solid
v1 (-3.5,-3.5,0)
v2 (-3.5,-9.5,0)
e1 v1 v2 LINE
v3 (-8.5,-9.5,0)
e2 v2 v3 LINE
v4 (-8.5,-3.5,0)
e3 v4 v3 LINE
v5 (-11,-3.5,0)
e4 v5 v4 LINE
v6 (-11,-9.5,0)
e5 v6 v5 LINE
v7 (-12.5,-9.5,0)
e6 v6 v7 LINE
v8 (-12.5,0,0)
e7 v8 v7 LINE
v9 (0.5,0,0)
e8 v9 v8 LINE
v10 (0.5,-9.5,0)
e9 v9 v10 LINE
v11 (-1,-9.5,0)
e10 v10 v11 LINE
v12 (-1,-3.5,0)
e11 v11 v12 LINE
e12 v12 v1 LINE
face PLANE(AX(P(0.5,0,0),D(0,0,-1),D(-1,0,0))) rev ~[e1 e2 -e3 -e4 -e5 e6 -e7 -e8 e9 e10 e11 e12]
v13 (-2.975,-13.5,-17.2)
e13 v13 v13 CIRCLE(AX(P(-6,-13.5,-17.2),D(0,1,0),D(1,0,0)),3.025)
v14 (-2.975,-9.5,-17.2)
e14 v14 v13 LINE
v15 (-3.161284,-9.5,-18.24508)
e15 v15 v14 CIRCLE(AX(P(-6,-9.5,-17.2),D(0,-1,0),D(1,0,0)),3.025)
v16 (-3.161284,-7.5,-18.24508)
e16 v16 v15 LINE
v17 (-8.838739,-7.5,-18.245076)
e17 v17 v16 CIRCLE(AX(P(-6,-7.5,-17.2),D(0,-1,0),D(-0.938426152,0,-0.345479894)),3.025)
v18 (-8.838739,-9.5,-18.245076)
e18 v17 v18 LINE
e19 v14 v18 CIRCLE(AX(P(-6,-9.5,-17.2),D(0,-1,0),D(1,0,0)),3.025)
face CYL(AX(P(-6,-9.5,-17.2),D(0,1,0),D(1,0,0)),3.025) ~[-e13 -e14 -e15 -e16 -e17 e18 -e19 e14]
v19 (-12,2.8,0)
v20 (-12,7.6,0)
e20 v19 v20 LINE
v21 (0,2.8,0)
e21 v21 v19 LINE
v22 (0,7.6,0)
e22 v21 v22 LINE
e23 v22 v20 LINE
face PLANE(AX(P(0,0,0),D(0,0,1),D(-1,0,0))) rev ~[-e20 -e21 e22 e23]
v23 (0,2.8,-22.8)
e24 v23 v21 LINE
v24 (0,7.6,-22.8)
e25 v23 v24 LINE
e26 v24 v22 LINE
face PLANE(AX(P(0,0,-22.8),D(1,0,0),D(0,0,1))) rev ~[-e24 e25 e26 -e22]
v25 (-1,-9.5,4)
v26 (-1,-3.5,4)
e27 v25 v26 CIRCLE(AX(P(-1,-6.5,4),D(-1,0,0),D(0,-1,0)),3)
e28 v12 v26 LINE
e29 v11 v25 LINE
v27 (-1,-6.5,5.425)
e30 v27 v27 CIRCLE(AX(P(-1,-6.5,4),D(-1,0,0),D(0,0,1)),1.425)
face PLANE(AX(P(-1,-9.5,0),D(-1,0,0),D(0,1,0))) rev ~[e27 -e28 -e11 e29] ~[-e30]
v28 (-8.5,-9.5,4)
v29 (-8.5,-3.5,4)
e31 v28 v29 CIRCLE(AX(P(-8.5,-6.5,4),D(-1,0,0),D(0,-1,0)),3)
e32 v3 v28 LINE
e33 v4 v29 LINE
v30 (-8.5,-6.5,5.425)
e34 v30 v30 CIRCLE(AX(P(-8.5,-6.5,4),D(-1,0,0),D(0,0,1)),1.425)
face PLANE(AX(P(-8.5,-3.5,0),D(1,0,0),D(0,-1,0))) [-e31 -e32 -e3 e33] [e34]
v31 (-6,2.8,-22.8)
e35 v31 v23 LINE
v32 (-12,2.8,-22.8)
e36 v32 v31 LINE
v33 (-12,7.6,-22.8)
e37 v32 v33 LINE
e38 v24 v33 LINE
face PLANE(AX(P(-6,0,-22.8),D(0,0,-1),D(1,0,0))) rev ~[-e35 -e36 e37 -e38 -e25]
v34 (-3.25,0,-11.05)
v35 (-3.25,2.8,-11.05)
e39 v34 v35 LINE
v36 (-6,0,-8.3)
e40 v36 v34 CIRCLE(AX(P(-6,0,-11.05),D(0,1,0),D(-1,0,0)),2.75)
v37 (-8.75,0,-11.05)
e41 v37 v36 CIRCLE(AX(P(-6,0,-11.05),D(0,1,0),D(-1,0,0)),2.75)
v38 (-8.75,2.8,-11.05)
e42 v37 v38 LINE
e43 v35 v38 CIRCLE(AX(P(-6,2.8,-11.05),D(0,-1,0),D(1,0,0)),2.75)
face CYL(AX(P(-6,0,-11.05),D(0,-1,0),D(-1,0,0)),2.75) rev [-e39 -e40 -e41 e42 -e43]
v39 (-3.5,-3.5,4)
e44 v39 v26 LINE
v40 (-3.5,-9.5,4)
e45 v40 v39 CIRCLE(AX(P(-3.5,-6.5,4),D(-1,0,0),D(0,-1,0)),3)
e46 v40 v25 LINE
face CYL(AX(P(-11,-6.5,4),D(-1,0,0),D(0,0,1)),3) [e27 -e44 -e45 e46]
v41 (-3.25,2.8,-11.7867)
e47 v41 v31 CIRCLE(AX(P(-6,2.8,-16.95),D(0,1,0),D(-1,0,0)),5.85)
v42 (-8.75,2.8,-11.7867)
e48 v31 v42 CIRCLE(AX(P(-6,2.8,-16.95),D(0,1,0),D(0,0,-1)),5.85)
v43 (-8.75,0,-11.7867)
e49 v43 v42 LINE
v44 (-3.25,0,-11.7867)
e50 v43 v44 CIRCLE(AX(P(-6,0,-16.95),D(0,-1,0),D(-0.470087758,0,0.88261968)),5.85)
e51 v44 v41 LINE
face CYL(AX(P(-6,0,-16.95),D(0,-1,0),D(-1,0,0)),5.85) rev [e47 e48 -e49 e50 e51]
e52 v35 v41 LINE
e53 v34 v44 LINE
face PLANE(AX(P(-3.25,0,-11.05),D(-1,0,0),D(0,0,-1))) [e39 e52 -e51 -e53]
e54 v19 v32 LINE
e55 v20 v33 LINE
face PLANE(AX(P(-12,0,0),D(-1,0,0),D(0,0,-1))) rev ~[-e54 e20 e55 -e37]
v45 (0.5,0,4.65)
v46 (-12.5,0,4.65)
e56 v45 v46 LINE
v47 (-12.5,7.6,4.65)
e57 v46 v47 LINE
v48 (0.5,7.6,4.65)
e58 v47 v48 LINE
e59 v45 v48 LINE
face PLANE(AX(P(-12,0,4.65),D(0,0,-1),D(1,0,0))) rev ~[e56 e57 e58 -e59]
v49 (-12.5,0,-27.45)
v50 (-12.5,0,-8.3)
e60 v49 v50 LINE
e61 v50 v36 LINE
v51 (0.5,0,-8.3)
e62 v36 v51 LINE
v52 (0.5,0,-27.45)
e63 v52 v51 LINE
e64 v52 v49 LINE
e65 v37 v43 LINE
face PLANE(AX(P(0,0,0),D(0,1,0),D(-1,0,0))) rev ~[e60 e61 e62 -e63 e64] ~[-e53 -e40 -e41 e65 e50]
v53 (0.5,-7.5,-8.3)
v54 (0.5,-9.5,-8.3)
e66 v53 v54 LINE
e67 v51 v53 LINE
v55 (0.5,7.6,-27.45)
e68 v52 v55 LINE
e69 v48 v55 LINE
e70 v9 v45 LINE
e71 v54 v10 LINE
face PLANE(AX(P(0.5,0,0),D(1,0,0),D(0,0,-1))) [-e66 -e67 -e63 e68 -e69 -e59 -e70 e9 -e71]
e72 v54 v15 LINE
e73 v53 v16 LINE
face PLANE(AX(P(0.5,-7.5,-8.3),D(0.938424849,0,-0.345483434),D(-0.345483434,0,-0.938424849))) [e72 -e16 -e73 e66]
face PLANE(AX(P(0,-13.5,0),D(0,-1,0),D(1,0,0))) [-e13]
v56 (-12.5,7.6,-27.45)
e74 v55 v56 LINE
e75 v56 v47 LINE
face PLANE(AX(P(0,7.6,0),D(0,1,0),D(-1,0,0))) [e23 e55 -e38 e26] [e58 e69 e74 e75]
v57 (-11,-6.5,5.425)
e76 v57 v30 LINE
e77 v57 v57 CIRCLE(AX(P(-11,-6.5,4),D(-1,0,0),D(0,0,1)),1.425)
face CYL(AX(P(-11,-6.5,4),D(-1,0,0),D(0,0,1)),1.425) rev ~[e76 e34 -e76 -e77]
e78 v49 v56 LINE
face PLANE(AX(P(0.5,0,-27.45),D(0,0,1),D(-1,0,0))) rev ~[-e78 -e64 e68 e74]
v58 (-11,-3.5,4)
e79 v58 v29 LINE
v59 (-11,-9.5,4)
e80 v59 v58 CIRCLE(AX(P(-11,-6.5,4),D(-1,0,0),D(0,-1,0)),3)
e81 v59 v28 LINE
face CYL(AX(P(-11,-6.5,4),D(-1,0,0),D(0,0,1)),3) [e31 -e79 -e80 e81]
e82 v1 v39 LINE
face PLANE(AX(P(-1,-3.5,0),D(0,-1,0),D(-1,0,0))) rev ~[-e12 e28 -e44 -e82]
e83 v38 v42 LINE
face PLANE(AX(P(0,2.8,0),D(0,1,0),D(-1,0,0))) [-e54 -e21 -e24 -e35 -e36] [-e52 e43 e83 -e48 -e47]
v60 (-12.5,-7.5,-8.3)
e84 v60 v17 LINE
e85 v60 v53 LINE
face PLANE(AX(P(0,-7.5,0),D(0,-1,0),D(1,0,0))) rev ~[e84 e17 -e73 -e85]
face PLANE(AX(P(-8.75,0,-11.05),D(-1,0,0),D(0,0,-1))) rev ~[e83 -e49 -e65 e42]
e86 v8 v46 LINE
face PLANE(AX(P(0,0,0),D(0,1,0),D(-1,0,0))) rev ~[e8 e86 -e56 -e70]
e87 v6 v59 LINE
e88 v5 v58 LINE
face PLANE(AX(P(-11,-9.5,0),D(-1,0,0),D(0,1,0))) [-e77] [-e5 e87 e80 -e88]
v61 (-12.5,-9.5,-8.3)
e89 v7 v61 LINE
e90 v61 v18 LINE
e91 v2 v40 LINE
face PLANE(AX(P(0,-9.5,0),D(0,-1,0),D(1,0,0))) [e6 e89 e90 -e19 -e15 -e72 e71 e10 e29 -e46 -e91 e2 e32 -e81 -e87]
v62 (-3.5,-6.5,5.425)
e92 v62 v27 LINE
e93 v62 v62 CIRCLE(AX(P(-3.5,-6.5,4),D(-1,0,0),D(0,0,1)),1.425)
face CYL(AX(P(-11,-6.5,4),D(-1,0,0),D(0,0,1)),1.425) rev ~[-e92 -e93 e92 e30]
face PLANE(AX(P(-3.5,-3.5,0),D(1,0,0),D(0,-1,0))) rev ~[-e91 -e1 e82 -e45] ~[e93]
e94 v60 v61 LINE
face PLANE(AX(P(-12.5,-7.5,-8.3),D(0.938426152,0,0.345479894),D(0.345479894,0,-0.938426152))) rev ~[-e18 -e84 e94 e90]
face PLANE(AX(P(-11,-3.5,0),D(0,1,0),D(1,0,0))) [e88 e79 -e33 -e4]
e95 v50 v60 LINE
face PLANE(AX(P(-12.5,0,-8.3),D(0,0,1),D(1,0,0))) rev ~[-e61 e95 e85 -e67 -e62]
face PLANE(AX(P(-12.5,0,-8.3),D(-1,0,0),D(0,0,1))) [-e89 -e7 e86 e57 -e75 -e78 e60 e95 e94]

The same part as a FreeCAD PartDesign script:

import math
import FreeCAD as App
import Part
import Sketcher
Q = App.Units.Quantity

doc = App.newDocument("Part")
body = doc.addObject("PartDesign::Body", "Body")

# Sketch on XZ plane
sketch1 = doc.addObject("Sketcher::SketchObject", "Sketch")
body.addObject(sketch1)
sketch1.AttachmentSupport = (doc.XZ_Plane, [""])
sketch1.MapMode = "FlatFace"
sketch1.addGeometry([
    Part.LineSegment(App.Vector(-12, 0, 0), App.Vector(0, 0, 0)),  # 0
    Part.LineSegment(App.Vector(0, 0, 0), App.Vector(0, -22.8, 0)),  # 1
    Part.LineSegment(App.Vector(0, -22.8, 0), App.Vector(-6, -22.8, 0)),  # 2
    Part.LineSegment(App.Vector(-6, -22.8, 0), App.Vector(-12, -22.8, 0)),  # 3
    Part.LineSegment(App.Vector(-12, -22.8, 0), App.Vector(-12, 0, 0)),  # 4
    Part.ArcOfCircle(Part.Circle(App.Vector(-6, -16.9, 0), App.Vector(0, 0, 1), 5.8), math.radians(118), math.radians(270)),  # 5
    Part.ArcOfCircle(Part.Circle(App.Vector(-6, -16.9, 0), App.Vector(0, 0, 1), 5.8), math.radians(-90), math.radians(62)),  # 6
    Part.LineSegment(App.Vector(-3.2, -11.8, 0), App.Vector(-3.2, -11.1, 0)),  # 7
    Part.ArcOfCircle(Part.Circle(App.Vector(-6, -11.1, 0), App.Vector(0, 0, 1), 2.8), math.radians(0), math.radians(180)),  # 8
    Part.LineSegment(App.Vector(-8.8, -11.1, 0), App.Vector(-8.8, -11.8, 0)),  # 9
], False)
sketch1.addConstraint([
    Sketcher.Constraint("Coincident", 0, 2, 1, 1),
    Sketcher.Constraint("Coincident", 1, 2, 2, 1),
    Sketcher.Constraint("Coincident", 2, 2, 3, 1),
    Sketcher.Constraint("Coincident", 3, 2, 4, 1),
    Sketcher.Constraint("Coincident", 4, 2, 0, 1),
    Sketcher.Constraint("Tangent", 5, 2, 6, 1),
    Sketcher.Constraint("Coincident", 6, 2, 7, 1),
    Sketcher.Constraint("Tangent", 7, 2, 8, 1),
    Sketcher.Constraint("Tangent", 8, 2, 9, 1),
    Sketcher.Constraint("Coincident", 9, 2, 5, 1),
    Sketcher.Constraint("Horizontal", 0),
    Sketcher.Constraint("Vertical", 1),
    Sketcher.Constraint("Horizontal", 2),
    Sketcher.Constraint("Horizontal", 3),
    Sketcher.Constraint("Vertical", 4),
    Sketcher.Constraint("Vertical", 7),
    Sketcher.Constraint("Vertical", 9),
    Sketcher.Constraint("Coincident", 0, 2, -1, 1),
    Sketcher.Constraint("Coincident", 5, 2, 2, 2),
    Sketcher.Constraint("Equal", 5, 6),
    Sketcher.Constraint("Horizontal", 6, 2, 9, 2),
    Sketcher.Constraint("Vertical", 8, 3, 2, 2),
    Sketcher.Constraint("Equal", 2, 3),
    Sketcher.Constraint("DistanceX", 0, 1, 0, 2, Q("12 mm")),
    Sketcher.Constraint("Radius", 5, Q("5.85 mm")),
    Sketcher.Constraint("Radius", 8, Q("2.75 mm")),
    Sketcher.Constraint("DistanceY", 1, 2, 1, 1, Q("22.8 mm")),
    Sketcher.Constraint("DistanceY", 5, 3, 8, 3, Q("5.9 mm")),
])
pad1 = doc.addObject("PartDesign::Pad", "Pad")
body.addObject(pad1)
pad1.Profile = sketch1
pad1.Length = 2.8
pad1.Reversed = True

# Sketch on XZ plane
sketch2 = doc.addObject("Sketcher::SketchObject", "Sketch001")
body.addObject(sketch2)
sketch2.AttachmentSupport = (doc.XZ_Plane, [""])
sketch2.MapMode = "FlatFace"
sketch2.addGeometry([
    Part.LineSegment(App.Vector(0, 5, 0), App.Vector(0, -27, 0)),  # 0
    Part.LineSegment(App.Vector(0, -27, 0), App.Vector(-12, -27, 0)),  # 1
    Part.LineSegment(App.Vector(-12, -27, 0), App.Vector(-12, 5, 0)),  # 2
    Part.LineSegment(App.Vector(-12, 5, 0), App.Vector(0, 5, 0)),  # 3
    Part.LineSegment(App.Vector(0, -23, 0), App.Vector(0, 0, 0)),  # 4
    Part.LineSegment(App.Vector(0, 0, 0), App.Vector(-12, 0, 0)),  # 5
    Part.LineSegment(App.Vector(-12, 0, 0), App.Vector(-12, -23, 0)),  # 6
    Part.LineSegment(App.Vector(-12, -23, 0), App.Vector(0, -23, 0)),  # 7
], False)
sketch2.addConstraint([
    Sketcher.Constraint("Coincident", 0, 2, 1, 1),
    Sketcher.Constraint("Coincident", 1, 2, 2, 1),
    Sketcher.Constraint("Coincident", 2, 2, 3, 1),
    Sketcher.Constraint("Coincident", 3, 2, 0, 1),
    Sketcher.Constraint("Coincident", 4, 2, 5, 1),
    Sketcher.Constraint("Coincident", 5, 2, 6, 1),
    Sketcher.Constraint("Coincident", 6, 2, 7, 1),
    Sketcher.Constraint("Coincident", 7, 2, 4, 1),
    Sketcher.Constraint("Vertical", 0),
    Sketcher.Constraint("Horizontal", 1),
    Sketcher.Constraint("Vertical", 2),
    Sketcher.Constraint("Horizontal", 3),
    Sketcher.Constraint("Vertical", 4),
    Sketcher.Constraint("Horizontal", 5),
    Sketcher.Constraint("Vertical", 6),
    Sketcher.Constraint("Horizontal", 7),
    Sketcher.Constraint("Coincident", 4, 2, -1, 1),
    Sketcher.Constraint("DistanceX", 5, 2, 5, 1, Q("12 mm")),
    Sketcher.Constraint("DistanceY", 4, 1, 4, 2, Q("22.8 mm")),
    Sketcher.Constraint("DistanceX", -1, 1, 0, 2, Q("0.5 mm")),
    Sketcher.Constraint("DistanceX", 2, 2, 5, 2, Q("0.5 mm")),
    Sketcher.Constraint("DistanceY", -1, 1, 2, 2, Q("4.65 mm")),
    Sketcher.Constraint("DistanceY", 1, 2, 6, 2, Q("4.65 mm")),
])
pad2 = doc.addObject("PartDesign::Pad", "Pad001")
body.addObject(pad2)
pad2.Profile = sketch2
pad2.Length = 7.6
pad2.Reversed = True

# Sketch on XZ plane
sketch3 = doc.addObject("Sketcher::SketchObject", "Sketch002")
body.addObject(sketch3)
sketch3.AttachmentSupport = (doc.XZ_Plane, [""])
sketch3.MapMode = "FlatFace"
sketch3.addGeometry([
    Part.LineSegment(App.Vector(0, -8, 0), App.Vector(0, 0, 0)),
    Part.LineSegment(App.Vector(0, 0, 0), App.Vector(-12, 0, 0)),
    Part.LineSegment(App.Vector(-12, 0, 0), App.Vector(-12, -8, 0)),
    Part.LineSegment(App.Vector(-12, -8, 0), App.Vector(0, -8, 0)),
], False)
sketch3.addConstraint([
    Sketcher.Constraint("Coincident", 0, 2, 1, 1),
    Sketcher.Constraint("Coincident", 1, 2, 2, 1),
    Sketcher.Constraint("Coincident", 2, 2, 3, 1),
    Sketcher.Constraint("Coincident", 3, 2, 0, 1),
    Sketcher.Constraint("Vertical", 0),
    Sketcher.Constraint("Horizontal", 1),
    Sketcher.Constraint("Vertical", 2),
    Sketcher.Constraint("Horizontal", 3),
    Sketcher.Constraint("PointOnObject", 0, 2, -1),
    Sketcher.Constraint("DistanceY", 0, 1, 0, 2, Q("8.3 mm")),
    Sketcher.Constraint("DistanceX", 1, 2, 1, 1, Q("13 mm")),
    Sketcher.Constraint("DistanceX", -1, 1, 0, 2, Q("0.5 mm")),
])
pad3 = doc.addObject("PartDesign::Pad", "Pad002")
body.addObject(pad3)
pad3.Profile = sketch3
pad3.Length = 7.5

# Sketch on XZ plane
sketch4 = doc.addObject("Sketcher::SketchObject", "Sketch003")
body.addObject(sketch4)
sketch4.AttachmentSupport = (doc.XZ_Plane, [""])
sketch4.MapMode = "FlatFace"
sketch4.AttachmentOffset = App.Placement(App.Vector(0, 0, 7.5), App.Rotation())
sketch4.addGeometry([
    Part.LineSegment(App.Vector(-3.2, -18.2, 0), App.Vector(0.5, -8.3, 0)),  # 0
    Part.LineSegment(App.Vector(0.5, -8.3, 0), App.Vector(0.5, 0, 0)),  # 1
    Part.LineSegment(App.Vector(0.5, 0, 0), App.Vector(-12.5, 0, 0)),  # 2
    Part.LineSegment(App.Vector(-12.5, 0, 0), App.Vector(-12.5, -8.3, 0)),  # 3
    Part.LineSegment(App.Vector(-12.5, -8.3, 0), App.Vector(-8.8, -18.2, 0)),  # 4
    Part.ArcOfCircle(Part.Circle(App.Vector(-6, -17.2, 0), App.Vector(0, 0, 1), 3), math.radians(-160), math.radians(-20)),  # 5
], False)
sketch4.addConstraint([
    Sketcher.Constraint("Coincident", 0, 2, 1, 1),
    Sketcher.Constraint("Coincident", 1, 2, 2, 1),
    Sketcher.Constraint("Coincident", 2, 2, 3, 1),
    Sketcher.Constraint("Coincident", 3, 2, 4, 1),
    Sketcher.Constraint("Tangent", 4, 2, 5, 1),
    Sketcher.Constraint("Tangent", 5, 2, 0, 1),
    Sketcher.Constraint("Vertical", 1),
    Sketcher.Constraint("Horizontal", 2),
    Sketcher.Constraint("Vertical", 3),
    Sketcher.Constraint("PointOnObject", 1, 2, -1),
    Sketcher.Constraint("Horizontal", 0, 2, 3, 2),
    Sketcher.Constraint("Horizontal", 4, 2, 5, 2),
    Sketcher.Constraint("Radius", 5, Q("3.025 mm")),
    Sketcher.Constraint("DistanceX", 2, 2, 2, 1, Q("13 mm")),
    Sketcher.Constraint("DistanceY", 1, 1, 1, 2, Q("8.3 mm")),
    Sketcher.Constraint("DistanceX", 5, 3, -1, 1, Q("6 mm")),
    Sketcher.Constraint("DistanceY", 5, 3, -1, 1, Q("17.2 mm")),
])
pad4 = doc.addObject("PartDesign::Pad", "Pad003")
body.addObject(pad4)
pad4.Profile = sketch4
pad4.Length = 2

# Sketch on XZ plane
sketch5 = doc.addObject("Sketcher::SketchObject", "Sketch004")
body.addObject(sketch5)
sketch5.AttachmentSupport = (doc.XZ_Plane, [""])
sketch5.MapMode = "FlatFace"
sketch5.AttachmentOffset = App.Placement(App.Vector(0, 0, 9.5), App.Rotation())
sketch5.addGeometry(Part.Circle(App.Vector(-6, -17.2, 0), App.Vector(0, 0, 1), 3), False)
sketch5.addConstraint([
    Sketcher.Constraint("Diameter", 0, Q("6.05 mm")),
    Sketcher.Constraint("DistanceX", 0, 3, -1, 1, Q("6 mm")),
    Sketcher.Constraint("DistanceY", 0, 3, -1, 1, Q("17.2 mm")),
])
pad5 = doc.addObject("PartDesign::Pad", "Pad004")
body.addObject(pad5)
pad5.Profile = sketch5
pad5.Length = 4

# Sketch on XY plane
sketch6 = doc.addObject("Sketcher::SketchObject", "Sketch005")
body.addObject(sketch6)
sketch6.AttachmentSupport = (doc.XY_Plane, [""])
sketch6.MapMode = "FlatFace"
sketch6.addGeometry([
    Part.LineSegment(App.Vector(-11, -9.5, 0), App.Vector(-8.5, -9.5, 0)),  # 0
    Part.LineSegment(App.Vector(-8.5, -9.5, 0), App.Vector(-8.5, -3.5, 0)),  # 1
    Part.LineSegment(App.Vector(-8.5, -3.5, 0), App.Vector(-11, -3.5, 0)),  # 2
    Part.LineSegment(App.Vector(-11, -3.5, 0), App.Vector(-11, -9.5, 0)),  # 3
    Part.LineSegment(App.Vector(-3.5, -9.5, 0), App.Vector(-1, -9.5, 0)),  # 4
    Part.LineSegment(App.Vector(-1, -9.5, 0), App.Vector(-1, -3.5, 0)),  # 5
    Part.LineSegment(App.Vector(-1, -3.5, 0), App.Vector(-3.5, -3.5, 0)),  # 6
    Part.LineSegment(App.Vector(-3.5, -3.5, 0), App.Vector(-3.5, -9.5, 0)),  # 7
], False)
sketch6.addConstraint([
    Sketcher.Constraint("Coincident", 0, 2, 1, 1),
    Sketcher.Constraint("Coincident", 1, 2, 2, 1),
    Sketcher.Constraint("Coincident", 2, 2, 3, 1),
    Sketcher.Constraint("Coincident", 3, 2, 0, 1),
    Sketcher.Constraint("Coincident", 4, 2, 5, 1),
    Sketcher.Constraint("Coincident", 5, 2, 6, 1),
    Sketcher.Constraint("Coincident", 6, 2, 7, 1),
    Sketcher.Constraint("Coincident", 7, 2, 4, 1),
    Sketcher.Constraint("Horizontal", 0),
    Sketcher.Constraint("Vertical", 1),
    Sketcher.Constraint("Horizontal", 2),
    Sketcher.Constraint("Vertical", 3),
    Sketcher.Constraint("Horizontal", 4),
    Sketcher.Constraint("Vertical", 5),
    Sketcher.Constraint("Horizontal", 6),
    Sketcher.Constraint("Vertical", 7),
    Sketcher.Constraint("Horizontal", 3, 2, 4, 2),
    Sketcher.Constraint("Horizontal", 2, 2, 5, 2),
    Sketcher.Constraint("Equal", 2, 4),
    Sketcher.Constraint("DistanceY", 1, 1, 1, 2, Q("6 mm")),
    Sketcher.Constraint("DistanceX", 0, 1, 0, 2, Q("2.5 mm")),
    Sketcher.Constraint("DistanceX", 2, 2, -1, 1, Q("11 mm")),
    Sketcher.Constraint("DistanceX", 4, 2, -1, 1, Q("1 mm")),
    Sketcher.Constraint("DistanceY", 0, 2, -1, 1, Q("9.5 mm")),
])
pad6 = doc.addObject("PartDesign::Pad", "Pad005")
body.addObject(pad6)
pad6.Profile = sketch6
pad6.Length = 7

# Sketch on YZ plane
sketch7 = doc.addObject("Sketcher::SketchObject", "Sketch006")
body.addObject(sketch7)
sketch7.AttachmentSupport = (doc.YZ_Plane, [""])
sketch7.MapMode = "FlatFace"
sketch7.AttachmentOffset = App.Placement(App.Vector(0, 0, -11), App.Rotation())
sketch7.addGeometry([
    Part.LineSegment(App.Vector(-6.5, 7, 0), App.Vector(-3.5, 7, 0)),  # 0
    Part.LineSegment(App.Vector(-3.5, 7, 0), App.Vector(-3.5, 4, 0)),  # 1
    Part.ArcOfCircle(Part.Circle(App.Vector(-6.5, 4, 0), App.Vector(0, 0, 1), 3), math.radians(0), math.radians(90)),  # 2
    Part.Circle(App.Vector(-6.5, 4, 0), App.Vector(0, 0, 1), 1.4),  # 3
    Part.LineSegment(App.Vector(-9.5, 7, 0), App.Vector(-6.5, 7, 0)),  # 4
    Part.ArcOfCircle(Part.Circle(App.Vector(-6.5, 4, 0), App.Vector(0, 0, 1), 3), math.radians(90), math.radians(180)),  # 5
    Part.LineSegment(App.Vector(-9.5, 4, 0), App.Vector(-9.5, 7, 0)),  # 6
], False)
sketch7.addConstraint([
    Sketcher.Constraint("Coincident", 0, 2, 1, 1),
    Sketcher.Constraint("Tangent", 1, 2, 2, 1),
    Sketcher.Constraint("Tangent", 2, 2, 0, 1),
    Sketcher.Constraint("Tangent", 4, 2, 5, 1),
    Sketcher.Constraint("Tangent", 5, 2, 6, 1),
    Sketcher.Constraint("Coincident", 6, 2, 4, 1),
    Sketcher.Constraint("Horizontal", 0),
    Sketcher.Constraint("Vertical", 1),
    Sketcher.Constraint("Horizontal", 4),
    Sketcher.Constraint("Vertical", 6),
    Sketcher.Constraint("Coincident", 3, 3, 2, 3),
    Sketcher.Constraint("Coincident", 5, 3, 2, 3),
    Sketcher.Constraint("Equal", 2, 5),
    Sketcher.Constraint("Radius", 2, Q("3 mm")),
    Sketcher.Constraint("Diameter", 3, Q("2.85 mm")),
    Sketcher.Constraint("DistanceY", -1, 1, 2, 3, Q("4 mm")),
    Sketcher.Constraint("DistanceX", 2, 3, -1, 1, Q("6.5 mm")),
])
pocket1 = doc.addObject("PartDesign::Pocket", "Pocket")
body.addObject(pocket1)
pocket1.Profile = sketch7
pocket1.Type = "ThroughAll"
pocket1.Reversed = True

doc.recompute()
